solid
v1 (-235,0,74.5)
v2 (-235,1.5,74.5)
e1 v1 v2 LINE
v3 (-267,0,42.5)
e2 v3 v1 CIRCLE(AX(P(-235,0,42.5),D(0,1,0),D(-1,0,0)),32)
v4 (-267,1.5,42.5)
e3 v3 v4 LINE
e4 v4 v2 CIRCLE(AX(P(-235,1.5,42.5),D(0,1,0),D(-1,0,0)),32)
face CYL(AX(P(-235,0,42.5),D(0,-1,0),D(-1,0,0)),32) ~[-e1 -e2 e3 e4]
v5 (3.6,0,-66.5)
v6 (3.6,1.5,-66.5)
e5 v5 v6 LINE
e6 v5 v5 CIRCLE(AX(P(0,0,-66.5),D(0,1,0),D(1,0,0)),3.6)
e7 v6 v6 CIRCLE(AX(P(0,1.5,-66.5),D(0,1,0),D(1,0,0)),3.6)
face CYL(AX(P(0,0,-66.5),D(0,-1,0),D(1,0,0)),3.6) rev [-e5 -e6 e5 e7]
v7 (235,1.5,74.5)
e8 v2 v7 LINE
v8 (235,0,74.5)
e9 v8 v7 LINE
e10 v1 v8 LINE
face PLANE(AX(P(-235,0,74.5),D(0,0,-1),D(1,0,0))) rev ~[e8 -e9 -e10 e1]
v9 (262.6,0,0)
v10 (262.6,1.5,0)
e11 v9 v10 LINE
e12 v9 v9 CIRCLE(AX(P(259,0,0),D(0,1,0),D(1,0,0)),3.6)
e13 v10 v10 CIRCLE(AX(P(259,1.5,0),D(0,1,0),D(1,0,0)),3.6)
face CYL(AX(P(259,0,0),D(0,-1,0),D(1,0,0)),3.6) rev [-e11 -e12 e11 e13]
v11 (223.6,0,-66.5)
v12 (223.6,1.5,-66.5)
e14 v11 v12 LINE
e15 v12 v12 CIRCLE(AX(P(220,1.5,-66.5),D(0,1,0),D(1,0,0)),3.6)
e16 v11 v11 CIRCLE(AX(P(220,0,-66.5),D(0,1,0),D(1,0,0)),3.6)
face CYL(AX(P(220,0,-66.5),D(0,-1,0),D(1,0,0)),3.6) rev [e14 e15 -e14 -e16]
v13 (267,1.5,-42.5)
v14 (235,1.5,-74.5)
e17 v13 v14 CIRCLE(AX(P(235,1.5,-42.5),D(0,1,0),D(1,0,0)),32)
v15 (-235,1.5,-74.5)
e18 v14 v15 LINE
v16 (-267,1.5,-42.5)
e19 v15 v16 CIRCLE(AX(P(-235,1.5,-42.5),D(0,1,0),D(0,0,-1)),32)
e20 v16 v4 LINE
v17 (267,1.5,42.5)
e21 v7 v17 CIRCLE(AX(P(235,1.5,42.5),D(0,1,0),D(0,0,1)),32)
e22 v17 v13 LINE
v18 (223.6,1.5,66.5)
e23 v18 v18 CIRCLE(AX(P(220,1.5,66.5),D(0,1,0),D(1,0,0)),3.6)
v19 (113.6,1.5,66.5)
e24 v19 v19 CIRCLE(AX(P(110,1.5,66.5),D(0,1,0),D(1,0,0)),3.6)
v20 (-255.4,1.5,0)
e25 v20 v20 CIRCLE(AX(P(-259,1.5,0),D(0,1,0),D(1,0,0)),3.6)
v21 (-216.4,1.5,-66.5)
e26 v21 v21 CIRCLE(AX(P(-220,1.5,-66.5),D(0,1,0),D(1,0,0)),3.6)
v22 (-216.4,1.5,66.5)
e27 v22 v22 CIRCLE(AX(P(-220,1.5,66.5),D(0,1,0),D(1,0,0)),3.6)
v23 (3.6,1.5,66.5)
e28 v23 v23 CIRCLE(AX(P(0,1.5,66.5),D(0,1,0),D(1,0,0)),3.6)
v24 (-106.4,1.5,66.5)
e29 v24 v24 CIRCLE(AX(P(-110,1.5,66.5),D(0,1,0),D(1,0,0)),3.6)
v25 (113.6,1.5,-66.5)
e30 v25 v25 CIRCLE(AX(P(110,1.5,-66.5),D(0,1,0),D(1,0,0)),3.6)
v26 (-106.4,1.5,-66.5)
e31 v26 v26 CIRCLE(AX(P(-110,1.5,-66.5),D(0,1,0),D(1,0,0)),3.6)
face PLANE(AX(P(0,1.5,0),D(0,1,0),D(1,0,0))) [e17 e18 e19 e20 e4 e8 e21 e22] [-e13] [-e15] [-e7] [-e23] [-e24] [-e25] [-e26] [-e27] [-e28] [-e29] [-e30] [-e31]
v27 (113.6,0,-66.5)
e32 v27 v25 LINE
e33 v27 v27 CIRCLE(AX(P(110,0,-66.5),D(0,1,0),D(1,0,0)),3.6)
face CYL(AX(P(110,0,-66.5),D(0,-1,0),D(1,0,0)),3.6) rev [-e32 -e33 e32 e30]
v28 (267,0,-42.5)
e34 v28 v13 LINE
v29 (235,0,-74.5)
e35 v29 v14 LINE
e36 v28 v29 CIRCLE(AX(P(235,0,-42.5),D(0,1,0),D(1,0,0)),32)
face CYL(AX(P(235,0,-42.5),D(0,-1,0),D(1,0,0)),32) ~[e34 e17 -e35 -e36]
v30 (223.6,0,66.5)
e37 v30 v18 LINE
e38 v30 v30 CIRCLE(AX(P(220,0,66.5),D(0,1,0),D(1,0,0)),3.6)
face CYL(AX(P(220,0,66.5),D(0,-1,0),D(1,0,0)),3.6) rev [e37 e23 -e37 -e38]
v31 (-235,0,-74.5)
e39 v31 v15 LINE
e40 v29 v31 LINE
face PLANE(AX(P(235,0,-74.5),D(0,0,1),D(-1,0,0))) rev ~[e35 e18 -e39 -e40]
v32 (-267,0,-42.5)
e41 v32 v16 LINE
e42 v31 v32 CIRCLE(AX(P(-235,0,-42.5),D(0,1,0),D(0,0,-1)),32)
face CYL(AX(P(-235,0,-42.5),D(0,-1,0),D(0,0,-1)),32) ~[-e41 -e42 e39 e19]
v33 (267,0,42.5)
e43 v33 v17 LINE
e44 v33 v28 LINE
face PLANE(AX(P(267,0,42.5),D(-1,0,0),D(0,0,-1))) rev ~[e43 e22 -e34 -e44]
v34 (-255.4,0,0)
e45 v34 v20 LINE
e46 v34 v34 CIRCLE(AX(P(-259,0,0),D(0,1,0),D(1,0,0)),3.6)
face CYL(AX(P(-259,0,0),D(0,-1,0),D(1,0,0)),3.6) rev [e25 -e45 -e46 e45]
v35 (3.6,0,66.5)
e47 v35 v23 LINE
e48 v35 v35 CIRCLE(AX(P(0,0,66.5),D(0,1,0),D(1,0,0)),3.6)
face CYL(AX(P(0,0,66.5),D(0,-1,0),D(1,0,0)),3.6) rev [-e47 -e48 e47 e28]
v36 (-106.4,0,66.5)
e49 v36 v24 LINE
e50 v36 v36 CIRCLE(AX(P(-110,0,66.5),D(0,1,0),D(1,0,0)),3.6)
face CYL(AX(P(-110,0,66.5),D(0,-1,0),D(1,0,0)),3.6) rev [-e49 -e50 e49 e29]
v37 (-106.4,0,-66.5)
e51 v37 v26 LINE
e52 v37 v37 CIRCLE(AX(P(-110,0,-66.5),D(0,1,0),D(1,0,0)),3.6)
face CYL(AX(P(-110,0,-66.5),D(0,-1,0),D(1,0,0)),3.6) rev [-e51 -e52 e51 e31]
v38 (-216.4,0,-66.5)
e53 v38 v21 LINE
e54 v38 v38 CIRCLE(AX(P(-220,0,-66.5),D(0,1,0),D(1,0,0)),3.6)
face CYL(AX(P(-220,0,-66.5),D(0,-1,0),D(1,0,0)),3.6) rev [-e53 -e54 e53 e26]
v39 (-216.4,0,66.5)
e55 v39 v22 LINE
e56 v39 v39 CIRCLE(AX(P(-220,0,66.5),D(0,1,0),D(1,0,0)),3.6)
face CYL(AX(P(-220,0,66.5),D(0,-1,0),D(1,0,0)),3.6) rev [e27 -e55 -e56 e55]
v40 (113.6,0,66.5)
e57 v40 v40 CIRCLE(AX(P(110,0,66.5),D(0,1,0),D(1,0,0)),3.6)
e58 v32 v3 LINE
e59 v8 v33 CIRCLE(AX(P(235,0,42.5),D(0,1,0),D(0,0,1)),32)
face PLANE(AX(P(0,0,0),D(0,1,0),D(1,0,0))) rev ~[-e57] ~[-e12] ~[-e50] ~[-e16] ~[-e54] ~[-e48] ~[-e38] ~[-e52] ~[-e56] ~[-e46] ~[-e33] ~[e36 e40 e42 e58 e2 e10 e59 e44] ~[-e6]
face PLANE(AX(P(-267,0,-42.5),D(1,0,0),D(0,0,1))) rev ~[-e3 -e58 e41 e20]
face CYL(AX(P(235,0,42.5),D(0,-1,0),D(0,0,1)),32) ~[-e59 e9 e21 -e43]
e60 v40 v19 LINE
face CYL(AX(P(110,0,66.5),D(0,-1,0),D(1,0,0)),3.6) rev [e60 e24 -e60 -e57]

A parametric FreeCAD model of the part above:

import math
import FreeCAD as App
import Part
import Sketcher
from FreeCAD import Vector

doc = App.newDocument("Part")
body = doc.addObject("PartDesign::Body", "Body")

# Sketch on XZ plane
sketch1 = body.newObject("Sketcher::SketchObject", "Sketch")
sketch1.AttachmentSupport = (doc.getObject("XZ_Plane"), [""])
sketch1.MapMode = "FlatFace"
sketch1.addGeometry([
    Part.LineSegment(Vector(-267, -42.5, 0), Vector(-267, 42.5, 0)),  # 0
    Part.ArcOfCircle(Part.Circle(Vector(-235, 42.5, 0), Vector(0, 0, 1), 32), math.radians(90), math.radians(180)),  # 1
    Part.LineSegment(Vector(-235, 74.5, 0), Vector(235, 74.5, 0)),  # 2
    Part.ArcOfCircle(Part.Circle(Vector(235, 42.5, 0), Vector(0, 0, 1), 32), math.radians(0), math.radians(90)),  # 3
    Part.LineSegment(Vector(267, 42.5, 0), Vector(267, -42.5, 0)),  # 4
    Part.ArcOfCircle(Part.Circle(Vector(235, -42.5, 0), Vector(0, 0, 1), 32), math.radians(-90), math.radians(0)),  # 5
    Part.LineSegment(Vector(235, -74.5, 0), Vector(-235, -74.5, 0)),  # 6
    Part.ArcOfCircle(Part.Circle(Vector(-235, -42.5, 0), Vector(0, 0, 1), 32), math.radians(180), math.radians(270)),  # 7
    Part.Circle(Vector(-220, 66.5, 0), Vector(0, 0, 1), 3.6),  # 8
    Part.Circle(Vector(-110, 66.5, 0), Vector(0, 0, 1), 3.6),  # 9
    Part.Circle(Vector(0, 66.5, 0), Vector(0, 0, 1), 3.6),  # 10
    Part.Circle(Vector(110, 66.5, 0), Vector(0, 0, 1), 3.6),  # 11
    Part.Circle(Vector(220, 66.5, 0), Vector(0, 0, 1), 3.6),  # 12
    Part.Circle(Vector(-259, 0, 0), Vector(0, 0, 1), 3.6),  # 13
    Part.Circle(Vector(-220, -66.5, 0), Vector(0, 0, 1), 3.6),  # 14
    Part.Circle(Vector(-110, -66.5, 0), Vector(0, 0, 1), 3.6),  # 15
    Part.Circle(Vector(259, 0, 0), Vector(0, 0, 1), 3.6),  # 16
    Part.Circle(Vector(0, -66.5, 0), Vector(0, 0, 1), 3.6),  # 17
    Part.Circle(Vector(110, -66.5, 0), Vector(0, 0, 1), 3.6),  # 18
    Part.Circle(Vector(220, -66.5, 0), Vector(0, 0, 1), 3.6),  # 19
], False)
sketch1.addConstraint([
    Sketcher.Constraint("Tangent", 0, 2, 1, 2),
    Sketcher.Constraint("Tangent", 1, 1, 2, 1),
    Sketcher.Constraint("Tangent", 2, 2, 3, 2),
    Sketcher.Constraint("Tangent", 3, 1, 4, 1),
    Sketcher.Constraint("Tangent", 4, 2, 5, 2),
    Sketcher.Constraint("Tangent", 5, 1, 6, 1),
    Sketcher.Constraint("Tangent", 6, 2, 7, 2),
    Sketcher.Constraint("Tangent", 7, 1, 0, 1),
    Sketcher.Constraint("Vertical", 0),
    Sketcher.Constraint("Horizontal", 2),
    Sketcher.Constraint("Vertical", 4),
    Sketcher.Constraint("Horizontal", 6),
    Sketcher.Constraint("Equal", 1, 3),
    Sketcher.Constraint("Equal", 3, 5),
    Sketcher.Constraint("Equal", 5, 7),
    Sketcher.Constraint("Equal", 8, 9),
    Sketcher.Constraint("Equal", 9, 10),
    Sketcher.Constraint("Equal", 10, 11),
    Sketcher.Constraint("Equal", 11, 12),
    Sketcher.Constraint("Equal", 12, 13),
    Sketcher.Constraint("Equal", 13, 14),
    Sketcher.Constraint("Equal", 14, 15),
    Sketcher.Constraint("Equal", 15, 16),
    Sketcher.Constraint("Equal", 16, 17),
    Sketcher.Constraint("Equal", 17, 18),
    Sketcher.Constraint("Equal", 18, 19),
    Sketcher.Constraint("Symmetric", 1, 3, 5, 3, -1, 1),
    Sketcher.Constraint("Symmetric", 12, 3, 14, 3, -1, 1),
    Sketcher.Constraint("Symmetric", 11, 3, 15, 3, -1, 1),
    Sketcher.Constraint("Symmetric", 13, 3, 16, 3, -1, 1),
    Sketcher.Constraint("Symmetric", 10, 3, 17, 3, -1, 1),
    Sketcher.Constraint("Symmetric", 9, 3, 18, 3, -1, 1),
    Sketcher.Constraint("Symmetric", 8, 3, 19, 3, -1, 1),
    Sketcher.Constraint("Symmetric", 9, 3, 11, 3, -2),
    Sketcher.Constraint("Symmetric", 8, 3, 12, 3, -2),
    Sketcher.Constraint("PointOnObject", 10, 3, -2),
    Sketcher.Constraint("PointOnObject", 13, 3, -1),
    Sketcher.Constraint("Horizontal", 8, 3, 9, 3),
    Sketcher.Constraint("Horizontal", 9, 3, 10, 3),
    Sketcher.Constraint("Radius", 1, 32.0),
    Sketcher.Constraint("Diameter", 8, 7.2),
    Sketcher.Constraint("DistanceX", 2, 1, 2, 2, 470.0),
    Sketcher.Constraint("DistanceY", 0, 1, 0, 2, 85.0),
    Sketcher.Constraint("DistanceX", 8, 3, -1, 1, 220.0),
    Sketcher.Constraint("DistanceX", 9, 3, -1, 1, 110.0),
    Sketcher.Constraint("DistanceX", 13, 3, -1, 1, 259.0),
    Sketcher.Constraint("DistanceY", 1, 3, 8, 3, 24.0),
])
pad1 = body.newObject("PartDesign::Pad", "Pad")
pad1.Profile = sketch1
pad1.Length = 1.5
pad1.Reversed = True

doc.recompute()
